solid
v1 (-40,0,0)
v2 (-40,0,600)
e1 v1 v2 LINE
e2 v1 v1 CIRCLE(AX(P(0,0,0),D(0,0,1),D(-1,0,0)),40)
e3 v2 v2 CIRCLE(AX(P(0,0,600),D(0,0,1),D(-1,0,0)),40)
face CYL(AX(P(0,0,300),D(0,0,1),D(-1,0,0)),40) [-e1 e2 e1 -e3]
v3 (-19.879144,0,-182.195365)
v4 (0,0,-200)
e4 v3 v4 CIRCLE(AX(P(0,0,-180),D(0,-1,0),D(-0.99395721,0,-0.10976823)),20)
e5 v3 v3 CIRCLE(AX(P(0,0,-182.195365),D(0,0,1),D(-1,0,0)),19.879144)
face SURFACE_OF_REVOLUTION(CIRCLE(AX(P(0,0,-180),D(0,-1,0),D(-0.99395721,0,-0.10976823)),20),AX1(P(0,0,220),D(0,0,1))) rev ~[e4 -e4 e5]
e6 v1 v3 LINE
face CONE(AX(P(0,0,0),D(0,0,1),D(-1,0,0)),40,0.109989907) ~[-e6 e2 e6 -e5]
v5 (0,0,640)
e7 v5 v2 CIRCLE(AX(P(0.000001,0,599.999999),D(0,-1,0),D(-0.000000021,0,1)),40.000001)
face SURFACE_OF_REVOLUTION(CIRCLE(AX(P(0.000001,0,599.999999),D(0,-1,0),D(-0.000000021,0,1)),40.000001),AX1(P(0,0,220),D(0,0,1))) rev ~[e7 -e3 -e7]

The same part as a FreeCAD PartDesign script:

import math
import FreeCAD as App
import Part
import Sketcher
from FreeCAD import Vector
Q = App.Units.Quantity

doc = App.newDocument("Part")
body = doc.addObject("PartDesign::Body", "Body")

sketch1 = doc.addObject("Sketcher::SketchObject", "Sketch")
body.addObject(sketch1)
sketch1.AttachmentSupport = (doc.XZ_Plane, [""])
sketch1.MapMode = "FlatFace"
sketch1.addGeometry(Part.LineSegment(Vector(-40, 600, 0), Vector(-40, 0, 0)), False)
sketch1.addGeometry(Part.LineSegment(Vector(-40, 0, 0), Vector(-19.879144, -182.195365, 0)), False)
sketch1.addGeometry(Part.ArcOfCircle(Part.Circle(Vector(0, -180, 0), Vector(0, 0, 1), 20), math.radians(-173.698045), math.radians(-89.999999)), False)
sketch1.addGeometry(Part.LineSegment(Vector(0, -200, 0), Vector(0, 640, 0)), False)
sketch1.addGeometry(Part.ArcOfCircle(Part.Circle(Vector(0.000001, 599.999999, 0), Vector(0, 0, 1), 40.000001), math.radians(90.000001), math.radians(179.999999)), False)
sketch1.addConstraint(Sketcher.Constraint("Coincident", 0, 2, 1, 1))
sketch1.addConstraint(Sketcher.Constraint("Tangent", 1, 2, 2, 1))
sketch1.addConstraint(Sketcher.Constraint("Coincident", 2, 2, 3, 1))
sketch1.addConstraint(Sketcher.Constraint("Coincident", 3, 2, 4, 1))
sketch1.addConstraint(Sketcher.Constraint("Tangent", 4, 2, 0, 1))
sketch1.addConstraint(Sketcher.Constraint("Vertical", 0))
sketch1.addConstraint(Sketcher.Constraint("Vertical", 3))
sketch1.addConstraint(Sketcher.Constraint("PointOnObject", 2, 3, -2))
sketch1.addConstraint(Sketcher.Constraint("PointOnObject", 4, 3, -2))
sketch1.addConstraint(Sketcher.Constraint("PointOnObject", 0, 2, -1))
sketch1.addConstraint(Sketcher.Constraint("PointOnObject", 2, 2, -2))
sketch1.addConstraint(Sketcher.Constraint("Radius", 2, Q("20 mm")))
sketch1.addConstraint(Sketcher.Constraint("Radius", 4, Q("40.000001 mm")))
sketch1.addConstraint(Sketcher.Constraint("DistanceY", 0, 2, 0, 1, Q("600 mm")))
sketch1.addConstraint(Sketcher.Constraint("DistanceY", 3, 1, 3, 2, Q("840 mm")))
revolution = doc.addObject("PartDesign::Revolution", "Revolution")
body.addObject(revolution)
revolution.Profile = sketch1
revolution.ReferenceAxis = (sketch1, ["V_Axis"])
revolution.Angle = 360

doc.recompute()
